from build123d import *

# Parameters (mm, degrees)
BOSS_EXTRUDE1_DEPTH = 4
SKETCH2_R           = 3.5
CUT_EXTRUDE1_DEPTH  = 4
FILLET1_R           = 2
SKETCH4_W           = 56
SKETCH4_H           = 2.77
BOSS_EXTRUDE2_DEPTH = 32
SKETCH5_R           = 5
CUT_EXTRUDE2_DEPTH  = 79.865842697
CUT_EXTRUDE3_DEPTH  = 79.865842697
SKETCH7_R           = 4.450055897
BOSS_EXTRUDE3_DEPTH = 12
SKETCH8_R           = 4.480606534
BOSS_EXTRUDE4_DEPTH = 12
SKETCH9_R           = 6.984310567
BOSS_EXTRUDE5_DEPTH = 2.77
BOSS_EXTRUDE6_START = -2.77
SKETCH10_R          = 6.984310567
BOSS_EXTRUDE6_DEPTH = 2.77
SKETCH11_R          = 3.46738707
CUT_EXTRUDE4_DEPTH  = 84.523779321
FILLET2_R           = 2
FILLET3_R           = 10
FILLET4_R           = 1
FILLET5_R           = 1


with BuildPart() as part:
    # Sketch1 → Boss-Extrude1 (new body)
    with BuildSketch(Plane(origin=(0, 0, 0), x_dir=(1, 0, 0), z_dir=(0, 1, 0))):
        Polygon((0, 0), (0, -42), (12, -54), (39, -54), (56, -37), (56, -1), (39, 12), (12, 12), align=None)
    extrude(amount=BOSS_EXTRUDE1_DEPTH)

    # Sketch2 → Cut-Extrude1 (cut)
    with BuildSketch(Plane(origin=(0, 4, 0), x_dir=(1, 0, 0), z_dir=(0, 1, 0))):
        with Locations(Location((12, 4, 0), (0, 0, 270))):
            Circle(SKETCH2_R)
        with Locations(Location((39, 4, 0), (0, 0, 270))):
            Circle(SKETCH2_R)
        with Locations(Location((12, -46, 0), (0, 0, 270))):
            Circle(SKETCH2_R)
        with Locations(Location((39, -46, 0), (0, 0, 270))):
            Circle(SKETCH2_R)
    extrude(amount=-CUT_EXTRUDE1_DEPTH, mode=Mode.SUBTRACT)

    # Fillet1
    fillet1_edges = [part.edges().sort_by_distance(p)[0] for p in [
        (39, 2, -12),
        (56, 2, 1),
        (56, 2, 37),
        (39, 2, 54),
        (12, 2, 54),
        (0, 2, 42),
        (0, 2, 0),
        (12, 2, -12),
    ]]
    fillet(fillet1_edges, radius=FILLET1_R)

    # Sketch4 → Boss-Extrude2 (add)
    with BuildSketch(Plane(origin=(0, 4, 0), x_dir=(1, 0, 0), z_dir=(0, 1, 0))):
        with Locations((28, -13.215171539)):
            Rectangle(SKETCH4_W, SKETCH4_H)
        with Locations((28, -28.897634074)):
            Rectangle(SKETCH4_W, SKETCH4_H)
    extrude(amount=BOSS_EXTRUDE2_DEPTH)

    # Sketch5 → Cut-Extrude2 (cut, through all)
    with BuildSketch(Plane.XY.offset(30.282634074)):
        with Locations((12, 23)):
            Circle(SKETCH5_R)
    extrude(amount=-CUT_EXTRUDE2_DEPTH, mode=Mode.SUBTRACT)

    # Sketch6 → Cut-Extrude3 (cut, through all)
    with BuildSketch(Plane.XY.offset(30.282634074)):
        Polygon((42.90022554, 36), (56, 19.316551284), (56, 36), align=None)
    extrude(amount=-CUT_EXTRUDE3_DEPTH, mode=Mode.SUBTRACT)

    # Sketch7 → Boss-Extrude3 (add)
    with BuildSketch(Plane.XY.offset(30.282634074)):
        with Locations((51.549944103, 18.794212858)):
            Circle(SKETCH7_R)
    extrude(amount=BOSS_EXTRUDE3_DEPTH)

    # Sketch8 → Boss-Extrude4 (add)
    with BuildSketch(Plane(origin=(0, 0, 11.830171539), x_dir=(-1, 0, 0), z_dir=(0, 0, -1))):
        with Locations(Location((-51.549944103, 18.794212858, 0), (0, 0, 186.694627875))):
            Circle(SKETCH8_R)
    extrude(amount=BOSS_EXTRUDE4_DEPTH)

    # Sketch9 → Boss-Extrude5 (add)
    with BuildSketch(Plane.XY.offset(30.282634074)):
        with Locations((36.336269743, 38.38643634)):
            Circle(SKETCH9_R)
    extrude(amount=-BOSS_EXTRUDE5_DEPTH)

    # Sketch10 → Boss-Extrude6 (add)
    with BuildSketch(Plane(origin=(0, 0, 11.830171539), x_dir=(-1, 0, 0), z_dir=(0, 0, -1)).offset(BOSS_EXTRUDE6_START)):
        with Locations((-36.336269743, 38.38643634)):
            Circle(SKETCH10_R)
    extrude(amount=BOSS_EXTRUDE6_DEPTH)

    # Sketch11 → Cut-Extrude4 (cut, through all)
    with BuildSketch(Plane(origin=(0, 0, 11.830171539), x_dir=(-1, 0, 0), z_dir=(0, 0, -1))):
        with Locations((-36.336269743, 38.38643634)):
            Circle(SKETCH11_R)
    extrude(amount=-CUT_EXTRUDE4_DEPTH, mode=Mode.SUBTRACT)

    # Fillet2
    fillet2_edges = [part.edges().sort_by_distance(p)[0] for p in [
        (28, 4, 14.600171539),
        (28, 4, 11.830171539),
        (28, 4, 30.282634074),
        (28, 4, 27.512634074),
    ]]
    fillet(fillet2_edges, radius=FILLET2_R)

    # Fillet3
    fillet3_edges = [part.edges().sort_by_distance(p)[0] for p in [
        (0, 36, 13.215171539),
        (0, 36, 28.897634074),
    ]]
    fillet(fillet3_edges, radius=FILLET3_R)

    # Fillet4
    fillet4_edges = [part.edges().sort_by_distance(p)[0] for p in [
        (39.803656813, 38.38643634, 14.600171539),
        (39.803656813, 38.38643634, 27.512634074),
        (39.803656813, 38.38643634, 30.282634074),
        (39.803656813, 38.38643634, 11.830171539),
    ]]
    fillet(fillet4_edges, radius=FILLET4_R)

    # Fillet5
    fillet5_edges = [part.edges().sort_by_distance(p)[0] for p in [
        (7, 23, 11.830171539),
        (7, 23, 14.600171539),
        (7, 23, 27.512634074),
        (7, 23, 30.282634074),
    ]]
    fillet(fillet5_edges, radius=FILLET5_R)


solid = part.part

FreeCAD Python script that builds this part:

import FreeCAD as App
import Part
import Sketcher

V = App.Vector
Q = App.Units.Quantity


def edges_at(feature, points):
    """Names of the edges that pass closest to the given points."""
    edges = feature.Shape.Edges
    near = lambda p: min(range(len(edges)), key=lambda i: edges[i].distToShape(Part.Vertex(*p))[0])
    return sorted({f"Edge{near(p) + 1}" for p in points})

doc = App.newDocument("Part")
body = doc.addObject("PartDesign::Body", "Body")

# Sketch on XZ plane
sketch1 = body.newObject("Sketcher::SketchObject", "Sketch")
sketch1.AttachmentSupport = (doc.getObject("XZ_Plane"), [""])
sketch1.MapMode = "FlatFace"
sketch1.addGeometry(Part.LineSegment(V(0, 0, 0), V(0, 42, 0)), False)
sketch1.addGeometry(Part.LineSegment(V(0, 42, 0), V(12, 54, 0)), False)
sketch1.addGeometry(Part.LineSegment(V(12, 54, 0), V(39, 54, 0)), False)
sketch1.addGeometry(Part.LineSegment(V(39, 54, 0), V(56, 37, 0)), False)
sketch1.addGeometry(Part.LineSegment(V(56, 37, 0), V(56, 1, 0)), False)
sketch1.addGeometry(Part.LineSegment(V(56, 1, 0), V(39, -12, 0)), False)
sketch1.addGeometry(Part.LineSegment(V(39, -12, 0), V(12, -12, 0)), False)
sketch1.addGeometry(Part.LineSegment(V(12, -12, 0), V(0, 0, 0)), False)
sketch1.addConstraint(Sketcher.Constraint("Coincident", 0, 2, 1, 1))
sketch1.addConstraint(Sketcher.Constraint("Coincident", 1, 2, 2, 1))
sketch1.addConstraint(Sketcher.Constraint("Coincident", 2, 2, 3, 1))
sketch1.addConstraint(Sketcher.Constraint("Coincident", 3, 2, 4, 1))
sketch1.addConstraint(Sketcher.Constraint("Coincident", 4, 2, 5, 1))
sketch1.addConstraint(Sketcher.Constraint("Coincident", 5, 2, 6, 1))
sketch1.addConstraint(Sketcher.Constraint("Coincident", 6, 2, 7, 1))
sketch1.addConstraint(Sketcher.Constraint("Coincident", 7, 2, 0, 1))
sketch1.addConstraint(Sketcher.Constraint("Vertical", 0))
sketch1.addConstraint(Sketcher.Constraint("Horizontal", 2))
sketch1.addConstraint(Sketcher.Constraint("Vertical", 4))
sketch1.addConstraint(Sketcher.Constraint("Horizontal", 6))
sketch1.addConstraint(Sketcher.Constraint("Coincident", 7, 2, -1, 1))
sketch1.addConstraint(Sketcher.Constraint("Perpendicular", 1, 3))
sketch1.addConstraint(Sketcher.Constraint("Parallel", 3, 7))
sketch1.addConstraint(Sketcher.Constraint("Vertical", 2, 2, 5, 2))
sketch1.addConstraint(Sketcher.Constraint("Vertical", 1, 2, 6, 2))
sketch1.addConstraint(Sketcher.Constraint("Equal", 1, 7))
sketch1.addConstraint(Sketcher.Constraint("DistanceX", 2, 1, 2, 2, Q("27 mm")))
sketch1.addConstraint(Sketcher.Constraint("DistanceY", 0, 1, 0, 2, Q("42 mm")))
sketch1.addConstraint(Sketcher.Constraint("DistanceY", 4, 2, 4, 1, Q("36 mm")))
sketch1.addConstraint(Sketcher.Constraint("DistanceX", -1, 1, 1, 2, Q("12 mm")))
sketch1.addConstraint(Sketcher.Constraint("DistanceX", -1, 1, 3, 2, Q("56 mm")))
pad1 = body.newObject("PartDesign::Pad", "Pad")
pad1.Profile = sketch1
pad1.Length = 4
pad1.Reversed = True

# Sketch on XZ plane
sketch2 = body.newObject("Sketcher::SketchObject", "Sketch001")
sketch2.AttachmentSupport = (doc.getObject("XZ_Plane"), [""])
sketch2.MapMode = "FlatFace"
sketch2.AttachmentOffset = App.Placement(V(0, 0, -4), App.Rotation())
sketch2.addGeometry(Part.Circle(V(12, -4, 0), V(0, 0, 1), 3.5), False)
sketch2.addGeometry(Part.Circle(V(39, -4, 0), V(0, 0, 1), 3.5), False)
sketch2.addGeometry(Part.Circle(V(12, 46, 0), V(0, 0, 1), 3.5), False)
sketch2.addGeometry(Part.Circle(V(39, 46, 0), V(0, 0, 1), 3.5), False)
sketch2.addConstraint(Sketcher.Constraint("Equal", 0, 1))
sketch2.addConstraint(Sketcher.Constraint("Equal", 1, 2))
sketch2.addConstraint(Sketcher.Constraint("Equal", 2, 3))
sketch2.addConstraint(Sketcher.Constraint("Horizontal", 0, 3, 1, 3))
sketch2.addConstraint(Sketcher.Constraint("Horizontal", 2, 3, 3, 3))
sketch2.addConstraint(Sketcher.Constraint("Vertical", 0, 3, 2, 3))
sketch2.addConstraint(Sketcher.Constraint("Vertical", 1, 3, 3, 3))
sketch2.addConstraint(Sketcher.Constraint("Diameter", 0, Q("7 mm")))
sketch2.addConstraint(Sketcher.Constraint("DistanceX", -1, 1, 0, 3, Q("12 mm")))
sketch2.addConstraint(Sketcher.Constraint("DistanceY", 0, 3, -1, 1, Q("4 mm")))
sketch2.addConstraint(Sketcher.Constraint("DistanceX", -1, 1, 1, 3, Q("39 mm")))
sketch2.addConstraint(Sketcher.Constraint("DistanceY", -1, 1, 2, 3, Q("46 mm")))
pocket1 = body.newObject("PartDesign::Pocket", "Pocket")
pocket1.Profile = sketch2
pocket1.Length = 4
pocket1.Reversed = True
doc.recompute()

fillet = body.newObject("PartDesign::Fillet", "Fillet")
fillet.Base = (pocket1, edges_at(pocket1, [
    (39, 2, -12),
    (56, 2, 1),
    (56, 2, 37),
    (39, 2, 54),
    (12, 2, 54),
    (0, 2, 42),
    (0, 2, 0),
    (12, 2, -12),
]))
fillet.Radius = 2

# Sketch on XZ plane
sketch3 = body.newObject("Sketcher::SketchObject", "Sketch002")
sketch3.AttachmentSupport = (doc.getObject("XZ_Plane"), [""])
sketch3.MapMode = "FlatFace"
sketch3.AttachmentOffset = App.Placement(V(0, 0, -4), App.Rotation())
sketch3.addGeometry(Part.LineSegment(V(0, 11.8, 0), V(0, 14.6, 0)), False)
sketch3.addGeometry(Part.LineSegment(V(0, 14.6, 0), V(56, 14.6, 0)), False)
sketch3.addGeometry(Part.LineSegment(V(56, 14.6, 0), V(56, 11.8, 0)), False)
sketch3.addGeometry(Part.LineSegment(V(56, 11.8, 0), V(0, 11.8, 0)), False)
sketch3.addGeometry(Part.LineSegment(V(0, 27.5, 0), V(0, 30.3, 0)), False)
sketch3.addGeometry(Part.LineSegment(V(0, 30.3, 0), V(56, 30.3, 0)), False)
sketch3.addGeometry(Part.LineSegment(V(56, 30.3, 0), V(56, 27.5, 0)), False)
sketch3.addGeometry(Part.LineSegment(V(56, 27.5, 0), V(0, 27.5, 0)), False)
sketch3.addConstraint(Sketcher.Constraint("Coincident", 0, 2, 1, 1))
sketch3.addConstraint(Sketcher.Constraint("Coincident", 1, 2, 2, 1))
sketch3.addConstraint(Sketcher.Constraint("Coincident", 2, 2, 3, 1))
sketch3.addConstraint(Sketcher.Constraint("Coincident", 3, 2, 0, 1))
sketch3.addConstraint(Sketcher.Constraint("Coincident", 4, 2, 5, 1))
sketch3.addConstraint(Sketcher.Constraint("Coincident", 5, 2, 6, 1))
sketch3.addConstraint(Sketcher.Constraint("Coincident", 6, 2, 7, 1))
sketch3.addConstraint(Sketcher.Constraint("Coincident", 7, 2, 4, 1))
sketch3.addConstraint(Sketcher.Constraint("Vertical", 0))
sketch3.addConstraint(Sketcher.Constraint("Horizontal", 1))
sketch3.addConstraint(Sketcher.Constraint("Vertical", 2))
sketch3.addConstraint(Sketcher.Constraint("Horizontal", 3))
sketch3.addConstraint(Sketcher.Constraint("Vertical", 4))
sketch3.addConstraint(Sketcher.Constraint("Horizontal", 5))
sketch3.addConstraint(Sketcher.Constraint("Vertical", 6))
sketch3.addConstraint(Sketcher.Constraint("Horizontal", 7))
sketch3.addConstraint(Sketcher.Constraint("PointOnObject", 0, 2, -2))
sketch3.addConstraint(Sketcher.Constraint("PointOnObject", 4, 2, -2))
sketch3.addConstraint(Sketcher.Constraint("Vertical", 2, 2, 5, 2))
sketch3.addConstraint(Sketcher.Constraint("Equal", 2, 4))
sketch3.addConstraint(Sketcher.Constraint("DistanceX", 1, 1, 1, 2, Q("56 mm")))
sketch3.addConstraint(Sketcher.Constraint("DistanceY", 0, 1, 0, 2, Q("2.77 mm")))
sketch3.addConstraint(Sketcher.Constraint("DistanceY", -1, 1, 0, 2, Q("14.600172 mm")))
sketch3.addConstraint(Sketcher.Constraint("DistanceY", -1, 1, 4, 2, Q("30.282634 mm")))
pad2 = body.newObject("PartDesign::Pad", "Pad001")
pad2.Profile = sketch3
pad2.Length = 32
pad2.Reversed = True

# Sketch on XY plane
sketch4 = body.newObject("Sketcher::SketchObject", "Sketch003")
sketch4.AttachmentSupport = (doc.getObject("XY_Plane"), [""])
sketch4.MapMode = "FlatFace"
sketch4.AttachmentOffset = App.Placement(V(0, 0, 30.282634), App.Rotation())
sketch4.addGeometry(Part.Circle(V(12, 23, 0), V(0, 0, 1), 5), False)
sketch4.addConstraint(Sketcher.Constraint("Diameter", 0, Q("10 mm")))
sketch4.addConstraint(Sketcher.Constraint("DistanceX", -1, 1, 0, 3, Q("12 mm")))
sketch4.addConstraint(Sketcher.Constraint("DistanceY", -1, 1, 0, 3, Q("23 mm")))
pocket2 = body.newObject("PartDesign::Pocket", "Pocket001")
pocket2.Profile = sketch4
pocket2.Type = "ThroughAll"

# Sketch on XY plane
sketch5 = body.newObject("Sketcher::SketchObject", "Sketch004")
sketch5.AttachmentSupport = (doc.getObject("XY_Plane"), [""])
sketch5.MapMode = "FlatFace"
sketch5.AttachmentOffset = App.Placement(V(0, 0, 30.282634), App.Rotation())
sketch5.addGeometry(Part.LineSegment(V(43, 36, 0), V(56, 19, 0)), False)
sketch5.addGeometry(Part.LineSegment(V(56, 19, 0), V(56, 36, 0)), False)
sketch5.addGeometry(Part.LineSegment(V(56, 36, 0), V(43, 36, 0)), False)
sketch5.addConstraint(Sketcher.Constraint("Coincident", 0, 2, 1, 1))
sketch5.addConstraint(Sketcher.Constraint("Coincident", 1, 2, 2, 1))
sketch5.addConstraint(Sketcher.Constraint("Coincident", 2, 2, 0, 1))
sketch5.addConstraint(Sketcher.Constraint("Vertical", 1))
sketch5.addConstraint(Sketcher.Constraint("Horizontal", 2))
sketch5.addConstraint(Sketcher.Constraint("DistanceX", -1, 1, 0, 2, Q("56 mm")))
sketch5.addConstraint(Sketcher.Constraint("DistanceY", -1, 1, 1, 2, Q("36 mm")))
sketch5.addConstraint(Sketcher.Constraint("DistanceY", 1, 1, 1, 2, Q("16.683449 mm")))
sketch5.addConstraint(Sketcher.Constraint("DistanceX", 2, 2, 2, 1, Q("13.099774 mm")))
pocket3 = body.newObject("PartDesign::Pocket", "Pocket002")
pocket3.Profile = sketch5
pocket3.Type = "ThroughAll"

# Sketch on XY plane
sketch6 = body.newObject("Sketcher::SketchObject", "Sketch005")
sketch6.AttachmentSupport = (doc.getObject("XY_Plane"), [""])
sketch6.MapMode = "FlatFace"
sketch6.AttachmentOffset = App.Placement(V(0, 0, 30.282634), App.Rotation())
sketch6.addGeometry(Part.Circle(V(51.5, 18.8, 0), V(0, 0, 1), 4.5), False)
sketch6.addConstraint(Sketcher.Constraint("Diameter", 0, Q("8.900112 mm")))
sketch6.addConstraint(Sketcher.Constraint("DistanceX", -1, 1, 0, 3, Q("51.549944 mm")))
sketch6.addConstraint(Sketcher.Constraint("DistanceY", -1, 1, 0, 3, Q("18.794213 mm")))
pad3 = body.newObject("PartDesign::Pad", "Pad002")
pad3.Profile = sketch6
pad3.Length = 12

# Sketch on XY plane
sketch7 = body.newObject("Sketcher::SketchObject", "Sketch006")
sketch7.AttachmentSupport = (doc.getObject("XY_Plane"), [""])
sketch7.MapMode = "FlatFace"
sketch7.AttachmentOffset = App.Placement(V(0, 0, 11.830172), App.Rotation())
sketch7.addGeometry(Part.Circle(V(51.5, 18.8, 0), V(0, 0, 1), 4.5), False)
sketch7.addConstraint(Sketcher.Constraint("Diameter", 0, Q("8.961213 mm")))
sketch7.addConstraint(Sketcher.Constraint("DistanceX", -1, 1, 0, 3, Q("51.549944 mm")))
sketch7.addConstraint(Sketcher.Constraint("DistanceY", -1, 1, 0, 3, Q("18.794213 mm")))
pad4 = body.newObject("PartDesign::Pad", "Pad003")
pad4.Profile = sketch7
pad4.Length = 12
pad4.Reversed = True

# Sketch on XY plane
sketch8 = body.newObject("Sketcher::SketchObject", "Sketch007")
sketch8.AttachmentSupport = (doc.getObject("XY_Plane"), [""])
sketch8.MapMode = "FlatFace"
sketch8.AttachmentOffset = App.Placement(V(0, 0, 30.282634), App.Rotation())
sketch8.addGeometry(Part.Circle(V(36, 38, 0), V(0, 0, 1), 7), False)
sketch8.addConstraint(Sketcher.Constraint("Diameter", 0, Q("13.968621 mm")))
sketch8.addConstraint(Sketcher.Constraint("DistanceX", -1, 1, 0, 3, Q("36.33627 mm")))
sketch8.addConstraint(Sketcher.Constraint("DistanceY", -1, 1, 0, 3, Q("38.386436 mm")))
pad5 = body.newObject("PartDesign::Pad", "Pad004")
pad5.Profile = sketch8
pad5.Length = 2.77
pad5.Reversed = True

# Sketch on XY plane
sketch9 = body.newObject("Sketcher::SketchObject", "Sketch008")
sketch9.AttachmentSupport = (doc.getObject("XY_Plane"), [""])
sketch9.MapMode = "FlatFace"
sketch9.AttachmentOffset = App.Placement(V(0, 0, 14.600172), App.Rotation())
sketch9.addGeometry(Part.Circle(V(36, 38, 0), V(0, 0, 1), 7), False)
sketch9.addConstraint(Sketcher.Constraint("Diameter", 0, Q("13.968621 mm")))
sketch9.addConstraint(Sketcher.Constraint("DistanceX", -1, 1, 0, 3, Q("36.33627 mm")))
sketch9.addConstraint(Sketcher.Constraint("DistanceY", -1, 1, 0, 3, Q("38.386436 mm")))
pad6 = body.newObject("PartDesign::Pad", "Pad005")
pad6.Profile = sketch9
pad6.Length = 2.77
pad6.Reversed = True

# Sketch on XY plane
sketch10 = body.newObject("Sketcher::SketchObject", "Sketch009")
sketch10.AttachmentSupport = (doc.getObject("XY_Plane"), [""])
sketch10.MapMode = "FlatFace"
sketch10.AttachmentOffset = App.Placement(V(0, 0, 11.830172), App.Rotation())
sketch10.addGeometry(Part.Circle(V(36.3, 38.4, 0), V(0, 0, 1), 3.5), False)
sketch10.addConstraint(Sketcher.Constraint("Diameter", 0, Q("6.934774 mm")))
sketch10.addConstraint(Sketcher.Constraint("DistanceX", -1, 1, 0, 3, Q("36.33627 mm")))
sketch10.addConstraint(Sketcher.Constraint("DistanceY", -1, 1, 0, 3, Q("38.386436 mm")))
pocket4 = body.newObject("PartDesign::Pocket", "Pocket003")
pocket4.Profile = sketch10
pocket4.Type = "ThroughAll"
pocket4.Reversed = True
doc.recompute()

fillet2 = body.newObject("PartDesign::Fillet", "Fillet001")
fillet2.Base = (pocket4, edges_at(pocket4, [
    (28, 4, 14.6),
    (28, 4, 11.83),
    (28, 4, 30.283),
    (28, 4, 27.513),
]))
fillet2.Radius = 2
doc.recompute()

fillet3 = body.newObject("PartDesign::Fillet", "Fillet002")
fillet3.Base = (fillet2, edges_at(fillet2, [(0, 36, 13.215), (0, 36, 28.898)]))
fillet3.Radius = 10
doc.recompute()

fillet4 = body.newObject("PartDesign::Fillet", "Fillet003")
fillet4.Base = (fillet3, edges_at(fillet3, [
    (39.804, 38.386, 14.6),
    (39.804, 38.386, 27.513),
    (39.804, 38.386, 30.283),
    (39.804, 38.386, 11.83),
]))
fillet4.Radius = 1
doc.recompute()

fillet5 = body.newObject("PartDesign::Fillet", "Fillet004")
fillet5.Base = (fillet4, edges_at(fillet4, [
    (7, 23, 11.83),
    (7, 23, 14.6),
    (7, 23, 27.513),
    (7, 23, 30.283),
]))
fillet5.Radius = 1

doc.recompute()
